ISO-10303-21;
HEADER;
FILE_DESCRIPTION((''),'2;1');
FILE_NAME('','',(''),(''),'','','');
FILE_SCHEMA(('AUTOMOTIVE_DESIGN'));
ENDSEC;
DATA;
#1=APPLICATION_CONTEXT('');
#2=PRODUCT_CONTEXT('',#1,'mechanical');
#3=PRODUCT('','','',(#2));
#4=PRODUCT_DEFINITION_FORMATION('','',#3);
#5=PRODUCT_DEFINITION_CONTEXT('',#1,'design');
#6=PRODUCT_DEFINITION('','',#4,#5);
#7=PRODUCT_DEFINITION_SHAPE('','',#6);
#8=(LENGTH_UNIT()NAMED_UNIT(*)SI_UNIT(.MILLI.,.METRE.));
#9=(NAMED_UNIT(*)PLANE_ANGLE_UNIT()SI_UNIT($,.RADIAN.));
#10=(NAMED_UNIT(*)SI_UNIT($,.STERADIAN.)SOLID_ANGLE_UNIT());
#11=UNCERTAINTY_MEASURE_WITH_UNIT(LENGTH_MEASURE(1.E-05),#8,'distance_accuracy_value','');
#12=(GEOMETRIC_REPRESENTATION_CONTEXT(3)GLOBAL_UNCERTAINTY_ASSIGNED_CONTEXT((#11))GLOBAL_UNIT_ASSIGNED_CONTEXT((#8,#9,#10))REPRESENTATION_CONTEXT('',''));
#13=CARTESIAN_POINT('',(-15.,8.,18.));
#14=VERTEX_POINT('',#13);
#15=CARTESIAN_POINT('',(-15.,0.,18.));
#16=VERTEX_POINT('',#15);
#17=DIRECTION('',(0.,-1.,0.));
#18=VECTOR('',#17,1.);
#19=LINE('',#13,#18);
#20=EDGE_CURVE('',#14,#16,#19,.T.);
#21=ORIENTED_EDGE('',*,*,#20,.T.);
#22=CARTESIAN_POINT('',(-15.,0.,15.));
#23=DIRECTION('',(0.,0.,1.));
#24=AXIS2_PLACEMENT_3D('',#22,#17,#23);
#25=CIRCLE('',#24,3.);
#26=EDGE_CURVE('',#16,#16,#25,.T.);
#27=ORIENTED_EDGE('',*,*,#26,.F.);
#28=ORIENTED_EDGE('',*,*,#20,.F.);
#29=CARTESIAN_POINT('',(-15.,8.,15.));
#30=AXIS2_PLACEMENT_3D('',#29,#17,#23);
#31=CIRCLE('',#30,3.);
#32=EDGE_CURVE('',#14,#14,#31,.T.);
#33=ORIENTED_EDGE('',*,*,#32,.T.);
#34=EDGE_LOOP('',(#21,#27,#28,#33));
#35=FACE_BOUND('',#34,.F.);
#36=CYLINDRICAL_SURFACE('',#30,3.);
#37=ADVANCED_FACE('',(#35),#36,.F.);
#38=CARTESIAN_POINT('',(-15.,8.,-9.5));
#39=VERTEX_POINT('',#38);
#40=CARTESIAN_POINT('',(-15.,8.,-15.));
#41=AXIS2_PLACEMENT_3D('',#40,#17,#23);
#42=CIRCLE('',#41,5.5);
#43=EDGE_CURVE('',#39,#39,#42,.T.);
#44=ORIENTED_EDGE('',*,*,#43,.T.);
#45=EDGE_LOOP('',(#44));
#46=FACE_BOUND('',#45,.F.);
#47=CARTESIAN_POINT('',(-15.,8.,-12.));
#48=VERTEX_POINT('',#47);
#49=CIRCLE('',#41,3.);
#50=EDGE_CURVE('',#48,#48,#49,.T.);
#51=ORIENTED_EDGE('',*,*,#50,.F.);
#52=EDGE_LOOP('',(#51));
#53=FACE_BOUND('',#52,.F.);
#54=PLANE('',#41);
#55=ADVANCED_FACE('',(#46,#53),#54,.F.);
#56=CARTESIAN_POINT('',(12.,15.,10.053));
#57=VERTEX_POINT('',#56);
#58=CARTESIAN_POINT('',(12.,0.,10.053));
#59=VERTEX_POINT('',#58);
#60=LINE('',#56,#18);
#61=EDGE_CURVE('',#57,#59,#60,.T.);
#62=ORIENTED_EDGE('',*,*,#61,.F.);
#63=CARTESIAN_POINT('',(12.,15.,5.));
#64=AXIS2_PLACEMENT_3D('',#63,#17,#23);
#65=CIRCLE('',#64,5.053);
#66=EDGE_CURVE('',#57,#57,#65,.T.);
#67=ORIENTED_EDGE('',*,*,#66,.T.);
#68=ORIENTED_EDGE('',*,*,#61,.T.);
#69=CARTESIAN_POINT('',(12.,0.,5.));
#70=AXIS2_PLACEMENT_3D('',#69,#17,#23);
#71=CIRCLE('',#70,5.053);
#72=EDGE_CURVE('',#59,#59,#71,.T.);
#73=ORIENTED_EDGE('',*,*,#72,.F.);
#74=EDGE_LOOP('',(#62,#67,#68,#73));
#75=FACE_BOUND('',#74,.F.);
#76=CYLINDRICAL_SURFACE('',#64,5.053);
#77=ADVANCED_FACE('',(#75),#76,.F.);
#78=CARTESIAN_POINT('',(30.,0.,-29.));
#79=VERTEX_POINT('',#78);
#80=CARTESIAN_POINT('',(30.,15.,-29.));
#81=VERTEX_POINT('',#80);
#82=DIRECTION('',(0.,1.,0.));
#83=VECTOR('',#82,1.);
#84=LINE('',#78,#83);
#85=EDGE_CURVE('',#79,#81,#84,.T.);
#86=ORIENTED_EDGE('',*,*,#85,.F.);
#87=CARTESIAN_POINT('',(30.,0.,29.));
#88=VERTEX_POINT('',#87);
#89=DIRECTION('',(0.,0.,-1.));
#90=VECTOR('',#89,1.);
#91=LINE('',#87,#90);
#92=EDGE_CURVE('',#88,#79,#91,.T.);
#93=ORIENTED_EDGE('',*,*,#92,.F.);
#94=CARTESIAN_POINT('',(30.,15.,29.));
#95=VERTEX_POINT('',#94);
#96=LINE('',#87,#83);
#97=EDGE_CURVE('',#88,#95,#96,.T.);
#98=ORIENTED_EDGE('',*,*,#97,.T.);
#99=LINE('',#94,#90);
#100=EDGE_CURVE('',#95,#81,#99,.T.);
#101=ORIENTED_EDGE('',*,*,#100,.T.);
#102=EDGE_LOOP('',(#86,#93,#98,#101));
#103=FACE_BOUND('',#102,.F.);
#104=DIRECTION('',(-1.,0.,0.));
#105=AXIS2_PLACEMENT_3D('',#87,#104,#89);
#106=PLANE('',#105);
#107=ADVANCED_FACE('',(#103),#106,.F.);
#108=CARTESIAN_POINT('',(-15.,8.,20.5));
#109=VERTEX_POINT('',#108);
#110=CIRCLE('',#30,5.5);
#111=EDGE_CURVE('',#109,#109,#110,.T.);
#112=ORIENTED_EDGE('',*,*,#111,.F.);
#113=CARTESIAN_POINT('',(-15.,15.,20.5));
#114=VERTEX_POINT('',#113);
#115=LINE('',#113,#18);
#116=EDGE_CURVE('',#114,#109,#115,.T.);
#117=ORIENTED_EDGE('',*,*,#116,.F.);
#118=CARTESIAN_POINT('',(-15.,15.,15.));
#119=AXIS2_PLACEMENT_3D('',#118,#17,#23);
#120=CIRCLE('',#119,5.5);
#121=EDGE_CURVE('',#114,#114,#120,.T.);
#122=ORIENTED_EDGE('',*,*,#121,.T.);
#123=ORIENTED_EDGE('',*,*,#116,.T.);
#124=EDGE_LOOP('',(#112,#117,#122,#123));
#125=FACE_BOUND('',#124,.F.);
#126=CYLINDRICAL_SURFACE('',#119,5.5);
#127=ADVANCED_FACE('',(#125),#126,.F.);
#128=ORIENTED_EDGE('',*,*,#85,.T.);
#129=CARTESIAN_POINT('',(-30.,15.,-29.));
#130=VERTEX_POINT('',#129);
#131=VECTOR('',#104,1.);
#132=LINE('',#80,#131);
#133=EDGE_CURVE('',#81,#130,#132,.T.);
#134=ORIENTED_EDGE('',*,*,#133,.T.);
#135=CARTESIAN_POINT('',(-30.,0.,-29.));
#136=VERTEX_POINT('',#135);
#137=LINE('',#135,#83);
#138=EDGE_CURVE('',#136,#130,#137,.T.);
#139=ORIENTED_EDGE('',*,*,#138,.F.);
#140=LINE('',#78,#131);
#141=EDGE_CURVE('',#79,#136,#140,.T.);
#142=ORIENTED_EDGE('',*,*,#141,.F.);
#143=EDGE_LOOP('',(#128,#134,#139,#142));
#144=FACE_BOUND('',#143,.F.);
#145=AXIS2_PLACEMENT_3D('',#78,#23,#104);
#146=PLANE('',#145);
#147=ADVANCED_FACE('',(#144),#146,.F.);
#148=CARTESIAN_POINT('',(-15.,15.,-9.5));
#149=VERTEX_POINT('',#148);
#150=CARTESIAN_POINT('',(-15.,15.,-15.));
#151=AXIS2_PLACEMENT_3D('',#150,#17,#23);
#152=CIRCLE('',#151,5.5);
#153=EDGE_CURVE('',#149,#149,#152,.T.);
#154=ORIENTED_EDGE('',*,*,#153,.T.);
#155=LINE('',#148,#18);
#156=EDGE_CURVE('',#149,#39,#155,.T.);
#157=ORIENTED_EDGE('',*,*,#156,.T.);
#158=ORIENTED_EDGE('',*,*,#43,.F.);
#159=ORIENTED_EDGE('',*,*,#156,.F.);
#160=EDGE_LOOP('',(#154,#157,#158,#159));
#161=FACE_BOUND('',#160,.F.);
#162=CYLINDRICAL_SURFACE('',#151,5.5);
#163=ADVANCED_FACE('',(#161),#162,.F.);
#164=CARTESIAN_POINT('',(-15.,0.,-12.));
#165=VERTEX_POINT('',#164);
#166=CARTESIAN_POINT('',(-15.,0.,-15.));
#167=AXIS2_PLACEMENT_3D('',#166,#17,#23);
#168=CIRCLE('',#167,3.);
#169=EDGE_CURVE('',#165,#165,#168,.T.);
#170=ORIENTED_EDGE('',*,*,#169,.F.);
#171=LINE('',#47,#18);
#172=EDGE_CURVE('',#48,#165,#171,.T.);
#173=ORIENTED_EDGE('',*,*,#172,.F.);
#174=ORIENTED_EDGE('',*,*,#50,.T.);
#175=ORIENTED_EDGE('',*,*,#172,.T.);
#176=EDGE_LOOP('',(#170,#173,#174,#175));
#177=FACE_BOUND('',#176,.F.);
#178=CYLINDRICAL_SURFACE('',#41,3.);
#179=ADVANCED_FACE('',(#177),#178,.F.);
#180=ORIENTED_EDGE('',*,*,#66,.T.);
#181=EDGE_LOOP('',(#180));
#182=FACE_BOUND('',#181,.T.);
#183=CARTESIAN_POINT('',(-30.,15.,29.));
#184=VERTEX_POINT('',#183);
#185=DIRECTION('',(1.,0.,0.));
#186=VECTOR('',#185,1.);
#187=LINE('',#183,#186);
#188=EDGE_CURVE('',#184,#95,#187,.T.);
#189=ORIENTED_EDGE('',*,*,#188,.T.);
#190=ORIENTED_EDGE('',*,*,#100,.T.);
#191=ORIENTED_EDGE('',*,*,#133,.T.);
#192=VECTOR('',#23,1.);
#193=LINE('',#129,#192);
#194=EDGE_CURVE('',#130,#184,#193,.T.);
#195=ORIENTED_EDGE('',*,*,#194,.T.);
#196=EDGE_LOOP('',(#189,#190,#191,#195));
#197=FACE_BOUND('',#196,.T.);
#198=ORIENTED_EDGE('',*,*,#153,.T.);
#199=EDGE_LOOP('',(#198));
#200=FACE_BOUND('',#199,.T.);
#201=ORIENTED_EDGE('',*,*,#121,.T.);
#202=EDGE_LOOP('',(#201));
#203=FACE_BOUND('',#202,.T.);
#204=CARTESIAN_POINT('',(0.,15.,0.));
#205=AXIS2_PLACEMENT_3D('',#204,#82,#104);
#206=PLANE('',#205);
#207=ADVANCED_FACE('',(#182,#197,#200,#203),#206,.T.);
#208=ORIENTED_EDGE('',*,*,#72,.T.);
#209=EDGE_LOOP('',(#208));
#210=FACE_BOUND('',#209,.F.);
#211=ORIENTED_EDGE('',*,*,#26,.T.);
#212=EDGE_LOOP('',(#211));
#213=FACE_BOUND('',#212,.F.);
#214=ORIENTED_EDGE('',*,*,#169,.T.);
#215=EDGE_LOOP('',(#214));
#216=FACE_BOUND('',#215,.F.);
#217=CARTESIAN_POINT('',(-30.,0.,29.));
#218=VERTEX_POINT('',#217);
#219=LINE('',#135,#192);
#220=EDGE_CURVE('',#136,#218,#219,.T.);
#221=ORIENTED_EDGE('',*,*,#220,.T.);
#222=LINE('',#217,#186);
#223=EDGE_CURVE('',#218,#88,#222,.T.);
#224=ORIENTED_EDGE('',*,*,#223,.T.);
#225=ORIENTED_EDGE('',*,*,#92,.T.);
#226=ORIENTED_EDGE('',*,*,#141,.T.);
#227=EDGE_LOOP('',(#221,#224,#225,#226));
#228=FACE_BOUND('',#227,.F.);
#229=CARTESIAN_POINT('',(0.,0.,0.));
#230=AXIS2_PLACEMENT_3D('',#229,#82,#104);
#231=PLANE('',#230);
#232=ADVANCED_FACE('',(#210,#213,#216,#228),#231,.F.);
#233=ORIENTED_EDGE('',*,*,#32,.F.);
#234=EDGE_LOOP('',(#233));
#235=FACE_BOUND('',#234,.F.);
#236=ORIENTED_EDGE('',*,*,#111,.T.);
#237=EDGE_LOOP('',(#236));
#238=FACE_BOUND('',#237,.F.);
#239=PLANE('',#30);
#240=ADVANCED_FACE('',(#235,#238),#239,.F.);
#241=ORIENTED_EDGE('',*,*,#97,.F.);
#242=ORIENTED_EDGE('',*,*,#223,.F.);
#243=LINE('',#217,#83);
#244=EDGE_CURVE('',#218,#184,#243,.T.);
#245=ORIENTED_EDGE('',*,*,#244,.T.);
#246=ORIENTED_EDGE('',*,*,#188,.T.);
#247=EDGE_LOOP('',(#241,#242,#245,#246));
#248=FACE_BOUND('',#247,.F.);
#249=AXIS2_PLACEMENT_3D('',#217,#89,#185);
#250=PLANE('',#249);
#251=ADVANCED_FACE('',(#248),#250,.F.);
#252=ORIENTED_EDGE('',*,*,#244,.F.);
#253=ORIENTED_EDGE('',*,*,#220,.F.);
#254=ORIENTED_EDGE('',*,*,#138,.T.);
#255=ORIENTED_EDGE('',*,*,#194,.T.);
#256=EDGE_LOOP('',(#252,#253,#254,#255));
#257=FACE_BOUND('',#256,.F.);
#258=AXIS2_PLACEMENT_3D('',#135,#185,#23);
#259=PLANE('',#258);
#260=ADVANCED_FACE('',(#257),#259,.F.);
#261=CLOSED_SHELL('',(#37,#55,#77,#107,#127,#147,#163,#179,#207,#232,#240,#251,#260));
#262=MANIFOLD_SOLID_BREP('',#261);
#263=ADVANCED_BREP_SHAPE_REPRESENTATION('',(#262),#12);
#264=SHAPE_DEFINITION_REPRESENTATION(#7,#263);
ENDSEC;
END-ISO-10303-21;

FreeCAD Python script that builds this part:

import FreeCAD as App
import Part
import Sketcher

V = App.Vector


def add_polygon(sketch, points):
    """Adds a closed chain of lines whose ends are joined by coincident constraints."""
    first, n = sketch.GeometryCount, len(points)
    for a, b in zip(points, points[1:] + points[:1]):
        sketch.addGeometry(Part.LineSegment(App.Vector(*a, 0), App.Vector(*b, 0)), False)
    for i in range(n):
        sketch.addConstraint(Sketcher.Constraint("Coincident", first + i, 2, first + (i + 1) % n, 1))

doc = App.newDocument("Part")
params = doc.addObject("Spreadsheet::Sheet", "Params")
for row, (alias, value) in enumerate([
    ("sketch1_width", "60 mm"),
    ("sketch1_height", "58 mm"),
    ("pad1_length", "15 mm"),
    ("hole_diameter", "10.106 mm"),
    ("sketch3_diameter", "6 mm"),
    ("hole2_diameter", "6 mm"),
    ("hole2_cbore_diameter", "11 mm"),
    ("hole2_cbore_depth", "7 mm"),
], start=1):
    params.set(f"A{row}", alias)
    params.set(f"B{row}", "=" + value)
    params.setAlias(f"B{row}", alias)

body = doc.addObject("PartDesign::Body", "Body")

# Sketch on XZ plane
sketch1 = body.newObject("Sketcher::SketchObject", "Sketch")
sketch1.AttachmentSupport = (doc.getObject("XZ_Plane"), [""])
sketch1.MapMode = "FlatFace"
add_polygon(sketch1, [(-30, -29), (-30, 29), (30, 29), (30, -29)])  # lines 0-3
sketch1.addConstraint([
    Sketcher.Constraint("Vertical", 0),
    Sketcher.Constraint("Horizontal", 1),
    Sketcher.Constraint("Vertical", 2),
    Sketcher.Constraint("Horizontal", 3),
    Sketcher.Constraint("Symmetric", 0, 2, 2, 2, -1, 1),
    Sketcher.Constraint("DistanceX", 1, 1, 1, 2, 60.0),
    Sketcher.Constraint("DistanceY", 0, 1, 0, 2, 58.0),
])
sketch1.setExpression("Constraints[9]", "Params.sketch1_width")
sketch1.setExpression("Constraints[10]", "Params.sketch1_height")
pad1 = body.newObject("PartDesign::Pad", "Pad")
pad1.Profile = sketch1
pad1.setExpression("Length", "Params.pad1_length")
pad1.Reversed = True

# Sketch on XZ plane
sketch2 = body.newObject("Sketcher::SketchObject", "Sketch001")
sketch2.AttachmentSupport = (doc.getObject("XZ_Plane"), [""])
sketch2.MapMode = "FlatFace"
sketch2.AttachmentOffset = App.Placement(V(0, 0, -15), App.Rotation())
sketch2.addGeometry(Part.Circle(V(12, 5, 0), V(0, 0, 1), 5), False)
sketch2.addConstraint([
    Sketcher.Constraint("Diameter", 0, 10.106),
    Sketcher.Constraint("DistanceX", -1, 1, 0, 3, 12.0),
    Sketcher.Constraint("DistanceY", -1, 1, 0, 3, 5.0),
])
doc.recompute()
hole = body.newObject("PartDesign::Hole", "Hole")
hole.Profile = sketch2
hole.ThreadType = "None"
hole.setExpression("Diameter", "Params.hole_diameter")
hole.DepthType = "ThroughAll"
hole.Reversed = True

# Sketch on XZ plane
sketch3 = body.newObject("Sketcher::SketchObject", "Sketch002")
sketch3.AttachmentSupport = (doc.getObject("XZ_Plane"), [""])
sketch3.MapMode = "FlatFace"
sketch3.AttachmentOffset = App.Placement(V(0, 0, -15), App.Rotation())
sketch3.addGeometry([
    Part.Circle(V(-15, 15, 0), V(0, 0, 1), 3),
    Part.Circle(V(-15, -15, 0), V(0, 0, 1), 3),
], False)
sketch3.addConstraint([
    Sketcher.Constraint("Equal", 0, 1),
    Sketcher.Constraint("Symmetric", 0, 3, 1, 3, -1),
    Sketcher.Constraint("Diameter", 0, 6.0),
    Sketcher.Constraint("DistanceX", 0, 3, -1, 1, 15.0),
    Sketcher.Constraint("DistanceY", -1, 1, 0, 3, 15.0),
])
sketch3.setExpression("Constraints[2]", "Params.sketch3_diameter")
doc.recompute()
hole2 = body.newObject("PartDesign::Hole", "Hole001")
hole2.Profile = sketch3
hole2.ThreadType = "None"
hole2.setExpression("Diameter", "Params.hole2_diameter")
hole2.DepthType = "ThroughAll"
hole2.HoleCutType = "Counterbore"
hole2.setExpression("HoleCutDiameter", "Params.hole2_cbore_diameter")
hole2.setExpression("HoleCutDepth", "Params.hole2_cbore_depth")
hole2.Reversed = True

doc.recompute()
